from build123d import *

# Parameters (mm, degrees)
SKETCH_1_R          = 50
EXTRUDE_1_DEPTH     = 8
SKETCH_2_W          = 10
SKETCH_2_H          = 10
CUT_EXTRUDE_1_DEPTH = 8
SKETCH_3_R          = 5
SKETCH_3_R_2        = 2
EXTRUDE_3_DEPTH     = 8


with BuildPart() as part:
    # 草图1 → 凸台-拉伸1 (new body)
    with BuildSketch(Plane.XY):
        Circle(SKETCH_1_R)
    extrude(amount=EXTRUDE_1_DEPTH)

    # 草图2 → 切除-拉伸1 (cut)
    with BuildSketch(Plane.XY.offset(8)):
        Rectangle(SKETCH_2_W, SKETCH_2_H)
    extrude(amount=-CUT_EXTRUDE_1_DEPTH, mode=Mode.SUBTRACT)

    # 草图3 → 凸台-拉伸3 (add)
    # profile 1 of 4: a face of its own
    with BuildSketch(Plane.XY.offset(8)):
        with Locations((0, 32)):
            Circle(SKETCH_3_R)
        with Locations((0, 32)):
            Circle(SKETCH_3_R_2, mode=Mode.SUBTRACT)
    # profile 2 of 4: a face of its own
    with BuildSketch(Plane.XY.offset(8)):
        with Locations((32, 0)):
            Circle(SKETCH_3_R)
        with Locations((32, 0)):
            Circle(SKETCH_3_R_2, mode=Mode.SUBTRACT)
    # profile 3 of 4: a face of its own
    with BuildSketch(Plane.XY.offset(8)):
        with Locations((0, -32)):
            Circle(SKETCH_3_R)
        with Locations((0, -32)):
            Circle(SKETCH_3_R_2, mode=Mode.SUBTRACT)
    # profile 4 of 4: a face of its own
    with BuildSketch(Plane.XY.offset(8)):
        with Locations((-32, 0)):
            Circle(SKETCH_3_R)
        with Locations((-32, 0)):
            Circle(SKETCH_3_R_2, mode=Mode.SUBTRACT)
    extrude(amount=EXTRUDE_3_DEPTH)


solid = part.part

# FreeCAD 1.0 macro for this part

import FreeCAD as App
import Part
import Sketcher

V = App.Vector
Q = App.Units.Quantity


def add_polygon(sketch, points):
    """Adds a closed chain of lines whose ends are joined by coincident constraints."""
    first, n = sketch.GeometryCount, len(points)
    for a, b in zip(points, points[1:] + points[:1]):
        sketch.addGeometry(Part.LineSegment(App.Vector(*a, 0), App.Vector(*b, 0)), False)
    for i in range(n):
        sketch.addConstraint(Sketcher.Constraint("Coincident", first + i, 2, first + (i + 1) % n, 1))

doc = App.newDocument("Part")
body = doc.addObject("PartDesign::Body", "Body")

sketch1 = body.newObject("Sketcher::SketchObject", "Sketch")
sketch1.AttachmentSupport = (doc.getObject("XY_Plane"), [""])
sketch1.MapMode = "FlatFace"
sketch1.addGeometry(Part.Circle(V(0, 0, 0), V(0, 0, 1), 50), False)
sketch1.addConstraint(Sketcher.Constraint("Coincident", 0, 3, -1, 1))
sketch1.addConstraint(Sketcher.Constraint("Diameter", 0, Q("100 mm")))
pad1 = body.newObject("PartDesign::Pad", "Pad")
pad1.Profile = sketch1
pad1.Length = 8

sketch2 = body.newObject("Sketcher::SketchObject", "Sketch001")
sketch2.AttachmentSupport = (doc.getObject("XY_Plane"), [""])
sketch2.MapMode = "FlatFace"
sketch2.AttachmentOffset = App.Placement(V(0, 0, 8), App.Rotation())
add_polygon(sketch2, [(-5, 5), (-5, -5), (5, -5), (5, 5)])
sketch2.addConstraint(Sketcher.Constraint("Vertical", 0))
sketch2.addConstraint(Sketcher.Constraint("Horizontal", 1))
sketch2.addConstraint(Sketcher.Constraint("Vertical", 2))
sketch2.addConstraint(Sketcher.Constraint("Horizontal", 3))
sketch2.addConstraint(Sketcher.Constraint("Symmetric", 0, 2, 2, 2, -1, 1))
sketch2.addConstraint(Sketcher.Constraint("Equal", 3, 0))
sketch2.addConstraint(Sketcher.Constraint("DistanceX", 1, 1, 1, 2, Q("10 mm")))
pocket1 = body.newObject("PartDesign::Pocket", "Pocket")
pocket1.Profile = sketch2
pocket1.Length = 8

sketch3 = body.newObject("Sketcher::SketchObject", "Sketch002")
sketch3.AttachmentSupport = (doc.getObject("XY_Plane"), [""])
sketch3.MapMode = "FlatFace"
sketch3.AttachmentOffset = App.Placement(V(0, 0, 8), App.Rotation())
sketch3.addGeometry(Part.Circle(V(0, 32, 0), V(0, 0, 1), 5), False)
sketch3.addGeometry(Part.Circle(V(0, 32, 0), V(0, 0, 1), 2), False)
sketch3.addGeometry(Part.Circle(V(32, 0, 0), V(0, 0, 1), 5), False)
sketch3.addGeometry(Part.Circle(V(32, 0, 0), V(0, 0, 1), 2), False)
sketch3.addGeometry(Part.Circle(V(0, -32, 0), V(0, 0, 1), 5), False)
sketch3.addGeometry(Part.Circle(V(0, -32, 0), V(0, 0, 1), 2), False)
sketch3.addGeometry(Part.Circle(V(-32, 0, 0), V(0, 0, 1), 5), False)
sketch3.addGeometry(Part.Circle(V(-32, 0, 0), V(0, 0, 1), 2), False)
sketch3.addConstraint(Sketcher.Constraint("Coincident", 1, 3, 0, 3))
sketch3.addConstraint(Sketcher.Constraint("Coincident", 3, 3, 2, 3))
sketch3.addConstraint(Sketcher.Constraint("Coincident", 5, 3, 4, 3))
sketch3.addConstraint(Sketcher.Constraint("Coincident", 7, 3, 6, 3))
sketch3.addConstraint(Sketcher.Constraint("Equal", 0, 2))
sketch3.addConstraint(Sketcher.Constraint("Equal", 1, 3))
sketch3.addConstraint(Sketcher.Constraint("Equal", 2, 4))
sketch3.addConstraint(Sketcher.Constraint("Equal", 3, 5))
sketch3.addConstraint(Sketcher.Constraint("Equal", 4, 6))
sketch3.addConstraint(Sketcher.Constraint("Equal", 5, 7))
sketch3.addConstraint(Sketcher.Constraint("Symmetric", 0, 3, 4, 3, -1, 1))
sketch3.addConstraint(Sketcher.Constraint("Symmetric", 2, 3, 6, 3, -1, 1))
sketch3.addConstraint(Sketcher.Constraint("PointOnObject", 0, 3, -2))
sketch3.addConstraint(Sketcher.Constraint("PointOnObject", 2, 3, -1))
sketch3.addConstraint(Sketcher.Constraint("Diameter", 0, Q("10 mm")))
sketch3.addConstraint(Sketcher.Constraint("Diameter", 1, Q("4 mm")))
sketch3.addConstraint(Sketcher.Constraint("DistanceY", -1, 1, 0, 3, Q("32 mm")))
sketch3.addConstraint(Sketcher.Constraint("DistanceX", -1, 1, 2, 3, Q("32 mm")))
pad2 = body.newObject("PartDesign::Pad", "Pad001")
pad2.Profile = sketch3
pad2.Length = 8

doc.recompute()
